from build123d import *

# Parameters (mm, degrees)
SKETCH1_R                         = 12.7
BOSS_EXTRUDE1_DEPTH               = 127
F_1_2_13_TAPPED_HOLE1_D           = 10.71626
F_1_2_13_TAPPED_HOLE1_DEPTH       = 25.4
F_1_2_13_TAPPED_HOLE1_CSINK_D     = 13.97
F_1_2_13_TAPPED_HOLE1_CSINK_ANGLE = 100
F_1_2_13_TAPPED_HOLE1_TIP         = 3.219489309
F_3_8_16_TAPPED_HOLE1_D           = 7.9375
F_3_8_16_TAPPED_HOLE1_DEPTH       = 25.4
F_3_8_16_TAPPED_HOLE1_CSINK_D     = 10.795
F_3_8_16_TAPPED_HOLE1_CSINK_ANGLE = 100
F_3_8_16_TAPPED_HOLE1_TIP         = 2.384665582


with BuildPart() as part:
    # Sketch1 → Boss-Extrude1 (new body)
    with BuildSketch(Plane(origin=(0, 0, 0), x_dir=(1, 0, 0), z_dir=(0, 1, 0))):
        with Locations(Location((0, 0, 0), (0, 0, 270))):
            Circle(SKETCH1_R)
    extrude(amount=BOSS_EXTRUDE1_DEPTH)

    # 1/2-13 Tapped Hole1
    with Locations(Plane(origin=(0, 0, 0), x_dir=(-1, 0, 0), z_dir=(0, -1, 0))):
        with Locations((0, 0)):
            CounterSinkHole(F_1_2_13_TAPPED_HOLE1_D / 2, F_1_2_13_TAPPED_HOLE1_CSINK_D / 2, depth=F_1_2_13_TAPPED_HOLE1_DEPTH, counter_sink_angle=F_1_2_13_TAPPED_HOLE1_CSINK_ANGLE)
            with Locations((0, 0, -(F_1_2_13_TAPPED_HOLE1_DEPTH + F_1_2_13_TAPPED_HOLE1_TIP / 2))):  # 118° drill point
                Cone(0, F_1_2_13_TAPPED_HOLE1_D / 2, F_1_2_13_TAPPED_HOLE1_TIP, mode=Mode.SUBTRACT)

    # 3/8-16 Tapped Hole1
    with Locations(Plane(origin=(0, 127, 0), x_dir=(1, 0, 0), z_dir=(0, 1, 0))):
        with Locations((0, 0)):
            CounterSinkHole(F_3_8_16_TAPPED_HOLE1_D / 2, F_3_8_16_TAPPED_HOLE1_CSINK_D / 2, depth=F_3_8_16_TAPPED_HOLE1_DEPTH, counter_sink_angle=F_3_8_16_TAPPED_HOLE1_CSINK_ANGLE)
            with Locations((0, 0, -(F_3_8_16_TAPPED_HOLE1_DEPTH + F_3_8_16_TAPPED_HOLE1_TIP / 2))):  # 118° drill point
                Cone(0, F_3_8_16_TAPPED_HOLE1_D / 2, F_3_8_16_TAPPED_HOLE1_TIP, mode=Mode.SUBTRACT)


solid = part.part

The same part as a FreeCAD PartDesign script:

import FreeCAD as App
import Part
import Sketcher
Q = App.Units.Quantity

doc = App.newDocument("Part")
body = doc.addObject("PartDesign::Body", "Body")

sketch1 = body.newObject("Sketcher::SketchObject", "Sketch")
sketch1.AttachmentSupport = (doc.getObject("XZ_Plane"), [""])
sketch1.MapMode = "FlatFace"
sketch1.addGeometry(Part.Circle(App.Vector(0, 0, 0), App.Vector(0, 0, 1), 12.7), False)
sketch1.addConstraint([
    Sketcher.Constraint("Coincident", 0, 3, -1, 1),
    Sketcher.Constraint("Diameter", 0, Q("1 in")),
])
pad1 = body.newObject("PartDesign::Pad", "Pad")
pad1.Profile = sketch1
pad1.Length = Q("5 in")
pad1.Reversed = True

sketch2 = body.newObject("Sketcher::SketchObject", "Sketch001")
sketch2.AttachmentSupport = (doc.getObject("XZ_Plane"), [""])
sketch2.MapMode = "FlatFace"
sketch2.addGeometry(Part.Circle(App.Vector(0, 0, 0), App.Vector(0, 0, 1), 5.35813), False)
sketch2.addConstraint([
    Sketcher.Constraint("Coincident", 0, 3, -1, 1),
    Sketcher.Constraint("Diameter", 0, Q("0.4219 in")),
])
doc.recompute()
hole = body.newObject("PartDesign::Hole", "Hole")
hole.Profile = sketch2
hole.ThreadType = "None"
hole.Diameter = Q("0.4219 in")
hole.DepthType = "Dimension"
hole.Depth = Q("1 in")
hole.DrillPoint = "Angled"
hole.DrillPointAngle = 118
hole.HoleCutType = "Countersink"
hole.HoleCutDiameter = Q("0.55 in")
hole.HoleCutCountersinkAngle = 100

sketch3 = body.newObject("Sketcher::SketchObject", "Sketch002")
sketch3.AttachmentSupport = (doc.getObject("XZ_Plane"), [""])
sketch3.MapMode = "FlatFace"
sketch3.AttachmentOffset = App.Placement(App.Vector(0, 0, -5 * 25.4), App.Rotation())
sketch3.addGeometry(Part.Circle(App.Vector(0, 0, 0), App.Vector(0, 0, 1), 3.96875), False)
sketch3.addConstraint([
    Sketcher.Constraint("Coincident", 0, 3, -1, 1),
    Sketcher.Constraint("Diameter", 0, Q("0.3125 in")),
])
doc.recompute()
hole2 = body.newObject("PartDesign::Hole", "Hole001")
hole2.Profile = sketch3
hole2.ThreadType = "None"
hole2.Diameter = Q("0.3125 in")
hole2.DepthType = "Dimension"
hole2.Depth = Q("1 in")
hole2.DrillPoint = "Angled"
hole2.DrillPointAngle = 118
hole2.HoleCutType = "Countersink"
hole2.HoleCutDiameter = Q("0.425 in")
hole2.HoleCutCountersinkAngle = 100
hole2.Reversed = True

doc.recompute()
